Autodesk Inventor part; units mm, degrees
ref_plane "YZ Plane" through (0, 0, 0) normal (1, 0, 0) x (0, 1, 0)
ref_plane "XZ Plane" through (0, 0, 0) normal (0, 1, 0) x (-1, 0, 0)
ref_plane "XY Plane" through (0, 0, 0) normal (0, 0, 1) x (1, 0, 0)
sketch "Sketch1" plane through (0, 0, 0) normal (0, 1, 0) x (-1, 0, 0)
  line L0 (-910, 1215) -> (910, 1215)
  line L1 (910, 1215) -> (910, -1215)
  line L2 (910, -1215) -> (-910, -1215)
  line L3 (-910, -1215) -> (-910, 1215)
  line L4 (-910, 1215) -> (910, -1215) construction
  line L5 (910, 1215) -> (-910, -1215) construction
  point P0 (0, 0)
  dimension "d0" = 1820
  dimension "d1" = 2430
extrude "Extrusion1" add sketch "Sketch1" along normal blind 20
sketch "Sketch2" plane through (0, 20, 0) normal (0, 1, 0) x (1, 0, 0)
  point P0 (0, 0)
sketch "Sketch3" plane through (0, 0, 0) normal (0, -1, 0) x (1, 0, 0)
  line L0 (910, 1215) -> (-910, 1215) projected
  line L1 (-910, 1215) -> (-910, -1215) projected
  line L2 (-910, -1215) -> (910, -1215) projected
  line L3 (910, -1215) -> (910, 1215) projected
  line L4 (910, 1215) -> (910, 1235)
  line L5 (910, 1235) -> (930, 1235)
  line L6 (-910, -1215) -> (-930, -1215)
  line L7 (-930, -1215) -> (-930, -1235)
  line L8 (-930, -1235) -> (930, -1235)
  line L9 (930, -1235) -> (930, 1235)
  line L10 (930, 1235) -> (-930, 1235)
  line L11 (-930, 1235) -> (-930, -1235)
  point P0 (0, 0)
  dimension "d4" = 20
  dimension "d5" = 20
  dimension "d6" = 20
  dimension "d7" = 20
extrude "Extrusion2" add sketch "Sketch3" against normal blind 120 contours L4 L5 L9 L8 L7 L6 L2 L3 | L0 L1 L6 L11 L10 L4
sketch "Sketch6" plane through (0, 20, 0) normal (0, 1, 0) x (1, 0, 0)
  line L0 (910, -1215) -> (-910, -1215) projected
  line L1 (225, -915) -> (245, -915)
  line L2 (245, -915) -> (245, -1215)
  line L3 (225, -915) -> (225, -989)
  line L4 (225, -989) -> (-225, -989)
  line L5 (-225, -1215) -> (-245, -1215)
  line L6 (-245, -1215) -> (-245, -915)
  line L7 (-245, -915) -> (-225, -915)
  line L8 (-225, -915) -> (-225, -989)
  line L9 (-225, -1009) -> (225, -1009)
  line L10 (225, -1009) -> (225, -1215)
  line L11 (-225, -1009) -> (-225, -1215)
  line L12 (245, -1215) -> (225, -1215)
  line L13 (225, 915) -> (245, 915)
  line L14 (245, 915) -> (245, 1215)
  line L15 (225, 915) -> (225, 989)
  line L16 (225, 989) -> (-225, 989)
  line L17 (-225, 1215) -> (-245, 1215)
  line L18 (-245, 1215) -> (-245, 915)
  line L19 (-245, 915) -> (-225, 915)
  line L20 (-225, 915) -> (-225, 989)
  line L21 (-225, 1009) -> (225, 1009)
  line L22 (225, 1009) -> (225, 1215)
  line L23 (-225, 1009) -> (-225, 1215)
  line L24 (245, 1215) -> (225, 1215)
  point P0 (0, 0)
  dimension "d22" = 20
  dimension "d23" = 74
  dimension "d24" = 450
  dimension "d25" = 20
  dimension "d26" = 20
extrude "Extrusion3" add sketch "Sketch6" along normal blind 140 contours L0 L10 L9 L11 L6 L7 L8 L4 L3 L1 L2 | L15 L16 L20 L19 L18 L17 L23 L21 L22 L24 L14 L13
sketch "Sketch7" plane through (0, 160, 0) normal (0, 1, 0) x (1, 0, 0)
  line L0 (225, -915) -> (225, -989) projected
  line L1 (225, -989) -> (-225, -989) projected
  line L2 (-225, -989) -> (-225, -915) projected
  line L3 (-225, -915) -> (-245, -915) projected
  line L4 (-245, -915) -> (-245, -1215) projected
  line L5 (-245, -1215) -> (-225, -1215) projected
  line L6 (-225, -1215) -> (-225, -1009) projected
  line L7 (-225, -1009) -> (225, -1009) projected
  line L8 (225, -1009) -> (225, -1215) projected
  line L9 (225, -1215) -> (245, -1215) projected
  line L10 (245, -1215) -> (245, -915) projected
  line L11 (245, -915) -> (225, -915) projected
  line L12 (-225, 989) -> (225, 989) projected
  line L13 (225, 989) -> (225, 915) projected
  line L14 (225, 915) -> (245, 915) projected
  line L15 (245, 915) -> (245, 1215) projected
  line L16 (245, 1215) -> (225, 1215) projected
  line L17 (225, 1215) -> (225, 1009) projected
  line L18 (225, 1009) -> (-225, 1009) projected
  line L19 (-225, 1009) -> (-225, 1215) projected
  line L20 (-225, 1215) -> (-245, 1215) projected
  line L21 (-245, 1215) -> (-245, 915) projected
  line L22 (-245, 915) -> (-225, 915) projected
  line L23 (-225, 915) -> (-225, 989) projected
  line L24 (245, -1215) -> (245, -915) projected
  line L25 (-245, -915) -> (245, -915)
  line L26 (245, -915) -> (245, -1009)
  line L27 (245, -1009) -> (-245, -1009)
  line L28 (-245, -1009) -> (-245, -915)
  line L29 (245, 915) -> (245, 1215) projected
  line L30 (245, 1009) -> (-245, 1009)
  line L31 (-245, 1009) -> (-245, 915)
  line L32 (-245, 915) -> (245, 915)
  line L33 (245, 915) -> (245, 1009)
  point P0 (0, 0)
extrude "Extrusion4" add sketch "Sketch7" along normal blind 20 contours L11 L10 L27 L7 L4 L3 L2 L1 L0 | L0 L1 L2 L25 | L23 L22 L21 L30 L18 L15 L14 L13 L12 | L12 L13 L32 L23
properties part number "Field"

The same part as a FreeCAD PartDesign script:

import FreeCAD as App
import Part
import Sketcher
Q = App.Units.Quantity


def add_polygon(sketch, points):
    """Adds a closed chain of lines whose ends are joined by coincident constraints."""
    first, n = sketch.GeometryCount, len(points)
    for a, b in zip(points, points[1:] + points[:1]):
        sketch.addGeometry(Part.LineSegment(App.Vector(*a, 0), App.Vector(*b, 0)), False)
    for i in range(n):
        sketch.addConstraint(Sketcher.Constraint("Coincident", first + i, 2, first + (i + 1) % n, 1))

doc = App.newDocument("Part")
params = doc.addObject("Spreadsheet::Sheet", "Params")
for row, (alias, value) in enumerate([
    ("sketch1_width", "1820 mm"),
    ("sketch1_height", "2430 mm"),
    ("pad1_length", "20 mm"),
    ("sketch2_width", "1860 mm"),
    ("sketch2_height", "2470 mm"),
    ("pad2_length", "120 mm"),
    ("sketch3_width", "20 mm"),
    ("sketch3_width2", "450 mm"),
    ("sketch3_height", "74 mm"),
    ("sketch3_height2", "300 mm"),
    ("pad3_length", "140 mm"),
    ("sketch4_width", "490 mm"),
    ("sketch4_height", "94 mm"),
    ("pad4_length", "20 mm"),
], start=1):
    params.set(f"A{row}", alias)
    params.set(f"B{row}", "=" + value)
    params.setAlias(f"B{row}", alias)

body = doc.addObject("PartDesign::Body", "Body")

# Sketch on XZ plane
sketch1 = doc.addObject("Sketcher::SketchObject", "Sketch")
body.addObject(sketch1)
sketch1.AttachmentSupport = (doc.XZ_Plane, [""])
sketch1.MapMode = "FlatFace"
add_polygon(sketch1, [(-910, 1215), (910, 1215), (910, -1215), (-910, -1215)])  # lines 0-3
sketch1.addConstraint([
    Sketcher.Constraint("Horizontal", 0),
    Sketcher.Constraint("Vertical", 1),
    Sketcher.Constraint("Horizontal", 2),
    Sketcher.Constraint("Vertical", 3),
    Sketcher.Constraint("Symmetric", 0, 2, 2, 2, -1, 1),
    Sketcher.Constraint("DistanceX", 0, 1, 0, 2, Q("1820 mm")),
    Sketcher.Constraint("DistanceY", 1, 2, 1, 1, Q("2430 mm")),
])
sketch1.setExpression("Constraints[9]", "Params.sketch1_width")
sketch1.setExpression("Constraints[10]", "Params.sketch1_height")
pad1 = doc.addObject("PartDesign::Pad", "Pad")
body.addObject(pad1)
pad1.Profile = sketch1
pad1.setExpression("Length", "Params.pad1_length")
pad1.Reversed = True

# Sketch on XZ plane
sketch2 = doc.addObject("Sketcher::SketchObject", "Sketch001")
body.addObject(sketch2)
sketch2.AttachmentSupport = (doc.XZ_Plane, [""])
sketch2.MapMode = "FlatFace"
add_polygon(sketch2, [(930, 1235), (-930, 1235), (-930, -1235), (930, -1235)])  # lines 0-3
add_polygon(sketch2, [(910, -1215), (-910, -1215), (-910, 1215), (910, 1215)])  # lines 4-7
sketch2.addConstraint([
    Sketcher.Constraint("Horizontal", 0),
    Sketcher.Constraint("Vertical", 1),
    Sketcher.Constraint("Horizontal", 2),
    Sketcher.Constraint("Vertical", 3),
    Sketcher.Constraint("Horizontal", 4),
    Sketcher.Constraint("Vertical", 5),
    Sketcher.Constraint("Horizontal", 6),
    Sketcher.Constraint("Vertical", 7),
    Sketcher.Constraint("Symmetric", 0, 2, 2, 2, -1, 1),
    Sketcher.Constraint("Symmetric", 4, 2, 6, 2, -1, 1),
    Sketcher.Constraint("DistanceX", 1, 2, 4, 2, Q("20 mm")),
    Sketcher.Constraint("DistanceY", 1, 2, 4, 2, Q("20 mm")),
    Sketcher.Constraint("DistanceX", 0, 2, 0, 1, Q("1860 mm")),
    Sketcher.Constraint("DistanceY", 1, 2, 1, 1, Q("2470 mm")),
])
sketch2.setExpression("Constraints[20]", "Params.sketch2_width")
sketch2.setExpression("Constraints[21]", "Params.sketch2_height")
pad2 = doc.addObject("PartDesign::Pad", "Pad001")
body.addObject(pad2)
pad2.Profile = sketch2
pad2.setExpression("Length", "Params.pad2_length")
pad2.Reversed = True

# Sketch on XZ plane
sketch3 = doc.addObject("Sketcher::SketchObject", "Sketch002")
body.addObject(sketch3)
sketch3.AttachmentSupport = (doc.XZ_Plane, [""])
sketch3.MapMode = "FlatFace"
sketch3.AttachmentOffset = App.Placement(App.Vector(0, 0, -20), App.Rotation())
add_polygon(sketch3, [(225, 1215), (245, 1215), (245, 915), (225, 915), (225, 989), (-225, 989), (-225, 915), (-245, 915), (-245, 1215), (-225, 1215), (-225, 1009), (225, 1009)])  # lines 0-11
add_polygon(sketch3, [(225, -989), (225, -915), (245, -915), (245, -1215), (225, -1215), (225, -1009), (-225, -1009), (-225, -1215), (-245, -1215), (-245, -915), (-225, -915), (-225, -989)])  # lines 12-23
sketch3.addConstraint([
    Sketcher.Constraint("Horizontal", 0),
    Sketcher.Constraint("Vertical", 1),
    Sketcher.Constraint("Horizontal", 2),
    Sketcher.Constraint("Vertical", 3),
    Sketcher.Constraint("Horizontal", 4),
    Sketcher.Constraint("Vertical", 5),
    Sketcher.Constraint("Horizontal", 6),
    Sketcher.Constraint("Vertical", 7),
    Sketcher.Constraint("Horizontal", 8),
    Sketcher.Constraint("Vertical", 9),
    Sketcher.Constraint("Horizontal", 10),
    Sketcher.Constraint("Vertical", 11),
    Sketcher.Constraint("Vertical", 12),
    Sketcher.Constraint("Horizontal", 13),
    Sketcher.Constraint("Vertical", 14),
    Sketcher.Constraint("Horizontal", 15),
    Sketcher.Constraint("Vertical", 16),
    Sketcher.Constraint("Horizontal", 17),
    Sketcher.Constraint("Vertical", 18),
    Sketcher.Constraint("Horizontal", 19),
    Sketcher.Constraint("Vertical", 20),
    Sketcher.Constraint("Horizontal", 21),
    Sketcher.Constraint("Vertical", 22),
    Sketcher.Constraint("Horizontal", 23),
    Sketcher.Constraint("Symmetric", 5, 2, 12, 2, -1, 1),
    Sketcher.Constraint("Symmetric", 7, 2, 14, 2, -1, 1),
    Sketcher.Constraint("Symmetric", 9, 2, 16, 2, -1, 1),
    Sketcher.Constraint("Symmetric", 11, 2, 18, 2, -1, 1),
    Sketcher.Constraint("Symmetric", 1, 2, 20, 2, -1, 1),
    Sketcher.Constraint("Symmetric", 3, 2, 22, 2, -1, 1),
    Sketcher.Constraint("Symmetric", 2, 2, 5, 2, -2),
    Sketcher.Constraint("Symmetric", 0, 2, 7, 2, -2),
    Sketcher.Constraint("Vertical", 5, 2, 8, 2),
    Sketcher.Constraint("Vertical", 3, 2, 10, 2),
    Sketcher.Constraint("DistanceX", 0, 1, 0, 2, Q("20 mm")),
    Sketcher.Constraint("DistanceX", 4, 2, 4, 1, Q("450 mm")),
    Sketcher.Constraint("DistanceY", 3, 1, 3, 2, Q("74 mm")),
    Sketcher.Constraint("DistanceY", 4, 2, 9, 2, Q("20 mm")),
    Sketcher.Constraint("DistanceY", 1, 2, 1, 1, Q("300 mm")),
    Sketcher.Constraint("DistanceY", -1, 1, 0, 2, Q("1215 mm")),
])
sketch3.setExpression("Constraints[58]", "Params.sketch3_width")
sketch3.setExpression("Constraints[59]", "Params.sketch3_width2")
sketch3.setExpression("Constraints[60]", "Params.sketch3_height")
sketch3.setExpression("Constraints[62]", "Params.sketch3_height2")
pad3 = doc.addObject("PartDesign::Pad", "Pad002")
body.addObject(pad3)
pad3.Profile = sketch3
pad3.setExpression("Length", "Params.pad3_length")
pad3.Reversed = True

# Sketch on XZ plane
sketch4 = doc.addObject("Sketcher::SketchObject", "Sketch003")
body.addObject(sketch4)
sketch4.AttachmentSupport = (doc.XZ_Plane, [""])
sketch4.MapMode = "FlatFace"
sketch4.AttachmentOffset = App.Placement(App.Vector(0, 0, -160), App.Rotation())
add_polygon(sketch4, [(245, 915), (-245, 915), (-245, 1009), (245, 1009)])  # lines 0-3
add_polygon(sketch4, [(-245, -915), (245, -915), (245, -1009), (-245, -1009)])  # lines 4-7
sketch4.addConstraint([
    Sketcher.Constraint("Horizontal", 0),
    Sketcher.Constraint("Vertical", 1),
    Sketcher.Constraint("Horizontal", 2),
    Sketcher.Constraint("Vertical", 3),
    Sketcher.Constraint("Horizontal", 4),
    Sketcher.Constraint("Vertical", 5),
    Sketcher.Constraint("Horizontal", 6),
    Sketcher.Constraint("Vertical", 7),
    Sketcher.Constraint("Symmetric", 0, 2, 4, 2, -1, 1),
    Sketcher.Constraint("Symmetric", 2, 2, 6, 2, -1, 1),
    Sketcher.Constraint("Vertical", 3, 2, 4, 2),
    Sketcher.Constraint("DistanceX", 0, 2, 0, 1, Q("490 mm")),
    Sketcher.Constraint("DistanceY", 1, 1, 1, 2, Q("94 mm")),
    Sketcher.Constraint("DistanceY", -1, 1, 0, 2, Q("915 mm")),
])
sketch4.setExpression("Constraints[19]", "Params.sketch4_width")
sketch4.setExpression("Constraints[20]", "Params.sketch4_height")
pad4 = doc.addObject("PartDesign::Pad", "Pad003")
body.addObject(pad4)
pad4.Profile = sketch4
pad4.setExpression("Length", "Params.pad4_length")
pad4.Reversed = True

doc.recompute()
